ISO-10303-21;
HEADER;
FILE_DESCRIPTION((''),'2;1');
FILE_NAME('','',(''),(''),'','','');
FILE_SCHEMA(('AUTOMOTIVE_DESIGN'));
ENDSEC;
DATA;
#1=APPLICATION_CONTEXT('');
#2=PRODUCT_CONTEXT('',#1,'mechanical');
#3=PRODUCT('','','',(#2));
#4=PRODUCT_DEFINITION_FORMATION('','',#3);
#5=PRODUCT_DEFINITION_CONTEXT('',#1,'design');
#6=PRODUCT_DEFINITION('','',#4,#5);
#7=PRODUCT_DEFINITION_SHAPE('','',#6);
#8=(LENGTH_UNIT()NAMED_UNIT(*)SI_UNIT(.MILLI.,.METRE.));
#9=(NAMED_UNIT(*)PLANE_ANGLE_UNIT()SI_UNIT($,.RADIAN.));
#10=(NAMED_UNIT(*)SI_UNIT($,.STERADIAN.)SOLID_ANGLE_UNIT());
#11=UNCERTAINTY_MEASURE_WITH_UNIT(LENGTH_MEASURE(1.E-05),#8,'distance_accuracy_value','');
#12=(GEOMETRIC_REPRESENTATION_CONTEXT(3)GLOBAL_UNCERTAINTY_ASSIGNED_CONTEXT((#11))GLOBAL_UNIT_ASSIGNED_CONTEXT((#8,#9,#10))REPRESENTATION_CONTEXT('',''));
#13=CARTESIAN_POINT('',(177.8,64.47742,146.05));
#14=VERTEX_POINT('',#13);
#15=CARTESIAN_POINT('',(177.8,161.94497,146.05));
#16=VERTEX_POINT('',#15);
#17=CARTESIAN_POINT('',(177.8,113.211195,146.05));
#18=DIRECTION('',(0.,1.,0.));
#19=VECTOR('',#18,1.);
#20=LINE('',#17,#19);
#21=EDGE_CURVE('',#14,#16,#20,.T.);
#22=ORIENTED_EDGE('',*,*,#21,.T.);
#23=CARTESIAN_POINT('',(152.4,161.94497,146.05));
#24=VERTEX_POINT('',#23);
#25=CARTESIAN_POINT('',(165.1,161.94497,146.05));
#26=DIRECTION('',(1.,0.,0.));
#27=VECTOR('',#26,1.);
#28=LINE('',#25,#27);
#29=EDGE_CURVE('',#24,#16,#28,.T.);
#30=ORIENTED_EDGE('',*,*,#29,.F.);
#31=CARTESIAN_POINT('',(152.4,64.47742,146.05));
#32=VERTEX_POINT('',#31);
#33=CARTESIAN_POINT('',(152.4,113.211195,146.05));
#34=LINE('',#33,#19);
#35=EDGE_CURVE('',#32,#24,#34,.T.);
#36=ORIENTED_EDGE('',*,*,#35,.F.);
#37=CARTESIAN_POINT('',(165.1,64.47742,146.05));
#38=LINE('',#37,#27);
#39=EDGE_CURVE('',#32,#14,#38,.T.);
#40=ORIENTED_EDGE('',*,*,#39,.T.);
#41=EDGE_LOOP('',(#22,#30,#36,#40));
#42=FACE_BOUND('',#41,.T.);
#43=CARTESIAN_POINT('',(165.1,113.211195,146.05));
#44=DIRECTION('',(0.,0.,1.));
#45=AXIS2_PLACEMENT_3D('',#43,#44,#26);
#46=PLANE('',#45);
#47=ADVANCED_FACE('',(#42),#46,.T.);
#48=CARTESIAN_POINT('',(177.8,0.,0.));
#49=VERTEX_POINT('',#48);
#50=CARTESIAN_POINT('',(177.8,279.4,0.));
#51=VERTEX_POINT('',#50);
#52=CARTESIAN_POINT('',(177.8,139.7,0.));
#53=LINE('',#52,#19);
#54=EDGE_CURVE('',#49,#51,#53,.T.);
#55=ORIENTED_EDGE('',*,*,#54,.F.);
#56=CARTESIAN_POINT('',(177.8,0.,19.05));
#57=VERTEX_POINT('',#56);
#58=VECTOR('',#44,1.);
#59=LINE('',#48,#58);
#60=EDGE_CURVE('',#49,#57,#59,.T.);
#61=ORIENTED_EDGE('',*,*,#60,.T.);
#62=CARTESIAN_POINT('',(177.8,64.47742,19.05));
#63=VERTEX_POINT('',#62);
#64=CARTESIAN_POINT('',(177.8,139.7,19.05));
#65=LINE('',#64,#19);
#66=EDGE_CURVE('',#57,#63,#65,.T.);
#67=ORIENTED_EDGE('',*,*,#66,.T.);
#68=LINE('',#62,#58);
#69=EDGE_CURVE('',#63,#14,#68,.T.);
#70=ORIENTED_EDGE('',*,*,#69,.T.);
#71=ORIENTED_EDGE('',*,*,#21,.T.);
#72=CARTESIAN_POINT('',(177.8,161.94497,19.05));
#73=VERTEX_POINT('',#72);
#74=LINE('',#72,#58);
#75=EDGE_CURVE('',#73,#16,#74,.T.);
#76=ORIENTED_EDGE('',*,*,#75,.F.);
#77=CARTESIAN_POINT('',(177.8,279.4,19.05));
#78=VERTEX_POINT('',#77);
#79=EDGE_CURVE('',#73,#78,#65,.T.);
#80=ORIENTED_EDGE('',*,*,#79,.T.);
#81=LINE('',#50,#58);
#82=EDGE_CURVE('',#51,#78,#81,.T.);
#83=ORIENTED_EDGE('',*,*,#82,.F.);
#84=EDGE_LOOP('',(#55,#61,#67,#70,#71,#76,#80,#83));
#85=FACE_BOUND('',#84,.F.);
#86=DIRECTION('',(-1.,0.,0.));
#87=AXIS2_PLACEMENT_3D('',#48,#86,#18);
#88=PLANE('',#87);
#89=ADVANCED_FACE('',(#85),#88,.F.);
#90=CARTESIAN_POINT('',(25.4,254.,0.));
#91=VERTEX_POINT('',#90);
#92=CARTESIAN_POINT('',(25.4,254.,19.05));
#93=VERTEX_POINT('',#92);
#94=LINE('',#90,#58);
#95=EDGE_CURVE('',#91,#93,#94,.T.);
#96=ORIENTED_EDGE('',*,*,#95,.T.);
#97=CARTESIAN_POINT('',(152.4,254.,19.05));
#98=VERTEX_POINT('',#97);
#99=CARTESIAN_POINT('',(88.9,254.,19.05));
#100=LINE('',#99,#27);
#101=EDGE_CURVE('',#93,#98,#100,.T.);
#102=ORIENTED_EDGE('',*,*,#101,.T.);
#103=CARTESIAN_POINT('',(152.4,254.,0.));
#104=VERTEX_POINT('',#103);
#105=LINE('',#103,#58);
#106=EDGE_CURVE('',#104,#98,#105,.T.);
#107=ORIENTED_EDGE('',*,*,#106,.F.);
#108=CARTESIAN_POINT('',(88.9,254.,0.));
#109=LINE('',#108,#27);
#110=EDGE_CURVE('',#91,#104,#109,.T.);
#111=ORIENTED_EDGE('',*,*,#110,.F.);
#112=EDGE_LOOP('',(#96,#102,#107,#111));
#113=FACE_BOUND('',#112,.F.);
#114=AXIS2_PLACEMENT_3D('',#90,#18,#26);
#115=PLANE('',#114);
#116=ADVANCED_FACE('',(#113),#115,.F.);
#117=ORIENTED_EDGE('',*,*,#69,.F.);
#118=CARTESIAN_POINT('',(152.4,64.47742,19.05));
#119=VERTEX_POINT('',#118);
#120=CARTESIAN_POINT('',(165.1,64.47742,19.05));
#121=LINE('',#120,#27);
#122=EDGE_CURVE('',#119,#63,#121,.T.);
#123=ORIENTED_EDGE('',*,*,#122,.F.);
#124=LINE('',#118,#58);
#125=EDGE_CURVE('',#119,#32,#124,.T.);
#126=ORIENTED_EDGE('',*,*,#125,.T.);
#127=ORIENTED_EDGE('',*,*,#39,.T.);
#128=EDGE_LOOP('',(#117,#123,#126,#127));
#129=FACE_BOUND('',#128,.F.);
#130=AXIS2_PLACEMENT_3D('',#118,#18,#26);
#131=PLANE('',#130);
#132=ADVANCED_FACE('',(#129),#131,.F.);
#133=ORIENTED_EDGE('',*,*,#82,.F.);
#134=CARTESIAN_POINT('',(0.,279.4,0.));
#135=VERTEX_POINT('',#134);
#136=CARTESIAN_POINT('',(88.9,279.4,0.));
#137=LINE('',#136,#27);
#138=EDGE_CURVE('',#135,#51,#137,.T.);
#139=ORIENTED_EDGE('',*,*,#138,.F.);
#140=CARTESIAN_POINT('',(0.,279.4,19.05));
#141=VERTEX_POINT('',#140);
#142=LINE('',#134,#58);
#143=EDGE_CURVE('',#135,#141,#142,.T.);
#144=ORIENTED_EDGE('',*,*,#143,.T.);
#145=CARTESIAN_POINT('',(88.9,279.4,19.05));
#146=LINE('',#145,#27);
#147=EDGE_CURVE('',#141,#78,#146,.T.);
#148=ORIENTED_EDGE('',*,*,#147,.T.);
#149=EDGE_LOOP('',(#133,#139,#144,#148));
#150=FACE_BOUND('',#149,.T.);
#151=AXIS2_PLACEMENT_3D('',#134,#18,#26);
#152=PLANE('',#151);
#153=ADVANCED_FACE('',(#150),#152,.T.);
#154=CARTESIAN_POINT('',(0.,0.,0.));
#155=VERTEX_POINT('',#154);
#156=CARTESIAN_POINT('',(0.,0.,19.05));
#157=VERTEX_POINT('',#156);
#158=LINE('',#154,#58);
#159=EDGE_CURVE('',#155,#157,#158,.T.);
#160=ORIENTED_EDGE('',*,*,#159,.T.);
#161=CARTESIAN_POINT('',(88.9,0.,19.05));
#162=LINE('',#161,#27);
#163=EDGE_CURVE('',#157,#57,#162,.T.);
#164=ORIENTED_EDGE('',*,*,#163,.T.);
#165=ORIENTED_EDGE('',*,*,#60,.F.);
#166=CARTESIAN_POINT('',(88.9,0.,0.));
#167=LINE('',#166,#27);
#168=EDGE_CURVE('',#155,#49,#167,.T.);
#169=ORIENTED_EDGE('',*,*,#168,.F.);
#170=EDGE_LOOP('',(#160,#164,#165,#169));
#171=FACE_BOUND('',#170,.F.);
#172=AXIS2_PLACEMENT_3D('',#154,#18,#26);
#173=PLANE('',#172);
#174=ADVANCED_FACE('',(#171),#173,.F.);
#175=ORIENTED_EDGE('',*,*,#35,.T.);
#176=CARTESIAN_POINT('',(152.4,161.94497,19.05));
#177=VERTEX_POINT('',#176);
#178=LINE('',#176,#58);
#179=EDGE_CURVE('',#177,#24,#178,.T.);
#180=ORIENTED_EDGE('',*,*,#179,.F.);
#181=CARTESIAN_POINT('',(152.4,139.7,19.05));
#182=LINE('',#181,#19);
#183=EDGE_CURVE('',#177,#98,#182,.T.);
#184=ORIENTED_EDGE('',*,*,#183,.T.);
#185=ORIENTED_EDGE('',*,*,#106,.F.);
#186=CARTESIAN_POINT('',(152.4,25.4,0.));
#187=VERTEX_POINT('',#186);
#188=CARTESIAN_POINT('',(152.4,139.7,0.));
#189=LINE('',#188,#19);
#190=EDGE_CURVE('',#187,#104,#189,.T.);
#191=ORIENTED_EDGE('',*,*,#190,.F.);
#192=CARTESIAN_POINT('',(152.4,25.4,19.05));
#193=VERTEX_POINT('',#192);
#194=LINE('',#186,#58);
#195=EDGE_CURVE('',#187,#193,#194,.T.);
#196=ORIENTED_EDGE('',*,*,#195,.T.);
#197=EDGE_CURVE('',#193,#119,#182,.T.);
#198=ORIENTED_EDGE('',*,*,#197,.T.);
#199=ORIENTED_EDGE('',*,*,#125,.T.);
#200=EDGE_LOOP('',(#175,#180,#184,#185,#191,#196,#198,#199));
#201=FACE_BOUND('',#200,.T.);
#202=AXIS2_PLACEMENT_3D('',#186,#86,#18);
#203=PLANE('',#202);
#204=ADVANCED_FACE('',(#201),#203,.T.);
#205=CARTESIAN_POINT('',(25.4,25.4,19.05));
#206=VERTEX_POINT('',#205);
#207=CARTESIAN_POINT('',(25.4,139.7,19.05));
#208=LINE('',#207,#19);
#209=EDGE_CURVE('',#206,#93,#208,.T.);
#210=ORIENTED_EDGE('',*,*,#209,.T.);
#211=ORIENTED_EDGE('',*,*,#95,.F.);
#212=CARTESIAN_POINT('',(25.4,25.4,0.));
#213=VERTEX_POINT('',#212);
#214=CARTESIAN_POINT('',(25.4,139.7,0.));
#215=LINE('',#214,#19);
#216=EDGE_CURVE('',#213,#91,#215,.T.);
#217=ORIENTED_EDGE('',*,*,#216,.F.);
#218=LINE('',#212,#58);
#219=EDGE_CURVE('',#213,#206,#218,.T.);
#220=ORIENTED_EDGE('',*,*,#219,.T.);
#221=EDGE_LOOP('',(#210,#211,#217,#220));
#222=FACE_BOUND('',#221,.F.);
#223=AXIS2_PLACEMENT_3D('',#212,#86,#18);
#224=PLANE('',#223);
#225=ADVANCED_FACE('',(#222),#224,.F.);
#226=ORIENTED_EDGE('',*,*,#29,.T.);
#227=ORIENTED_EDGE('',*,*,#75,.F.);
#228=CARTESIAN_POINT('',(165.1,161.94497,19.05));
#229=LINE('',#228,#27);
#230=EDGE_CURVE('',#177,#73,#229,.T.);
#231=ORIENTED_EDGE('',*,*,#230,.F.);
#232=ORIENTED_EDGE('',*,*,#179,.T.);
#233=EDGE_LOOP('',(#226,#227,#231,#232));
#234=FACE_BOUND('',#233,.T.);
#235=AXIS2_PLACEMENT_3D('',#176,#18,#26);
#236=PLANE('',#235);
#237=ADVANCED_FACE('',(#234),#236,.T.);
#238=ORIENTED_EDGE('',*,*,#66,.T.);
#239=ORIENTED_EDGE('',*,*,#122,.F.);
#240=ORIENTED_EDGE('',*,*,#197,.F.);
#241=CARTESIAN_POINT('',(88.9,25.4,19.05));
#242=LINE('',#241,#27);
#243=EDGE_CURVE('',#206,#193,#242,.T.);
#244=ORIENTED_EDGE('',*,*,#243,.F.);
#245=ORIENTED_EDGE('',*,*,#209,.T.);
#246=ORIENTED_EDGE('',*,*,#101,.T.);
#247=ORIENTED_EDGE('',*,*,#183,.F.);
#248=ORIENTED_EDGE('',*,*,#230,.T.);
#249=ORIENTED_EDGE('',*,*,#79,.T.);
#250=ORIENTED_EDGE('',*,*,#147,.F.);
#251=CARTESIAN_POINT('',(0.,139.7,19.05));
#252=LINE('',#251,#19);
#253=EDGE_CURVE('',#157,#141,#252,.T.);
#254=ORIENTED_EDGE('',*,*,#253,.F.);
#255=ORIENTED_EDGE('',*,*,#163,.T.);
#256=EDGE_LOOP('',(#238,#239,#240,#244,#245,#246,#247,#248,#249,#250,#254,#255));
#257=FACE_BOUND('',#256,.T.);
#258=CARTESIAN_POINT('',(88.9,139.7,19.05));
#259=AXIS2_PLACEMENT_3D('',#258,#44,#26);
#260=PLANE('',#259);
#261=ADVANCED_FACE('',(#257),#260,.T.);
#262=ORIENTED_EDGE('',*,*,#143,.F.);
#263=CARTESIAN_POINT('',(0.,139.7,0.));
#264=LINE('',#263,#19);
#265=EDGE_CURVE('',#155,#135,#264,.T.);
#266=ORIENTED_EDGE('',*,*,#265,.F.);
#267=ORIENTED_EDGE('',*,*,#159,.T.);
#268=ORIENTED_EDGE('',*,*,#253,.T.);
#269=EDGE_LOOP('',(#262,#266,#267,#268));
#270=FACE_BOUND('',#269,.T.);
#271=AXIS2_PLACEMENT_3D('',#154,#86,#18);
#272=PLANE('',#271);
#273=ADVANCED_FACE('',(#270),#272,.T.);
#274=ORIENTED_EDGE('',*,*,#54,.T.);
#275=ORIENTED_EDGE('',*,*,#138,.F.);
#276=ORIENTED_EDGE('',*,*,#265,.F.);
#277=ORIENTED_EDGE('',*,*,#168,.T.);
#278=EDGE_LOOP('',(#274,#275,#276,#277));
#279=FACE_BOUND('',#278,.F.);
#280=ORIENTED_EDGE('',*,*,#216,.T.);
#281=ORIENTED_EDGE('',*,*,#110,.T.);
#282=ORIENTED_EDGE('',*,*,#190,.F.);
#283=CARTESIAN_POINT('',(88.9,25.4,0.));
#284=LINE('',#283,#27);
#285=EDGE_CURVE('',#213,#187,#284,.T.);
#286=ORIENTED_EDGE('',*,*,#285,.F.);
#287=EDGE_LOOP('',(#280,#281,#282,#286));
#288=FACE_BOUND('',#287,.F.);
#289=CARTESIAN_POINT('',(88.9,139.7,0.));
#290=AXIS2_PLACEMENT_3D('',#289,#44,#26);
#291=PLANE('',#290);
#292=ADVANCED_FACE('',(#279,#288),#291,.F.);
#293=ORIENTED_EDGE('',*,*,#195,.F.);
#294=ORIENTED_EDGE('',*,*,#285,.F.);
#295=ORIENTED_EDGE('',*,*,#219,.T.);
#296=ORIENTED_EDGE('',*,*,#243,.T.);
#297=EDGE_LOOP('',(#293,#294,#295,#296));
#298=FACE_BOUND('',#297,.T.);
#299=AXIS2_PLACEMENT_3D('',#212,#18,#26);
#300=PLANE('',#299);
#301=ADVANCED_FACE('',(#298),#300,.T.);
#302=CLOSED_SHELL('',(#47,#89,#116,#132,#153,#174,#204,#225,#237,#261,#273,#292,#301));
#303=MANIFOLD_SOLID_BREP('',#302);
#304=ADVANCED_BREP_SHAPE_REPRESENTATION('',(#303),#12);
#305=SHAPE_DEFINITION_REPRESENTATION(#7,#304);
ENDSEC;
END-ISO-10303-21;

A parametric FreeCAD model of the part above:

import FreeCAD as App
import Part
import Sketcher
Q = App.Units.Quantity


def add_polygon(sketch, points):
    """Adds a closed chain of lines whose ends are joined by coincident constraints."""
    first, n = sketch.GeometryCount, len(points)
    for a, b in zip(points, points[1:] + points[:1]):
        sketch.addGeometry(Part.LineSegment(App.Vector(*a, 0), App.Vector(*b, 0)), False)
    for i in range(n):
        sketch.addConstraint(Sketcher.Constraint("Coincident", first + i, 2, first + (i + 1) % n, 1))

doc = App.newDocument("Part")
params = doc.addObject("Spreadsheet::Sheet", "Params")
for row, (alias, value) in enumerate([
    ("sketch1_width", "7 in"),
    ("sketch1_width2", "5 in"),
    ("sketch1_height", "11 in"),
    ("sketch1_height2", "9 in"),
    ("pad1_length", "0.75 in"),
    ("sketch2_width", "1 in"),
    ("pad2_length", "5 in"),
], start=1):
    params.set(f"A{row}", alias)
    params.set(f"B{row}", "=" + value)
    params.setAlias(f"B{row}", alias)

body = doc.addObject("PartDesign::Body", "Body")

# Sketch on XY plane
sketch1 = body.newObject("Sketcher::SketchObject", "Sketch")
sketch1.AttachmentSupport = (doc.getObject("XY_Plane"), [""])
sketch1.MapMode = "FlatFace"
add_polygon(sketch1, [(0, 279.4), (0, 0), (177.8, 0), (177.8, 279.4)])  # lines 0-3
add_polygon(sketch1, [(152.4, 25.4), (25.4, 25.4), (25.4, 254), (152.4, 254)])  # lines 4-7
sketch1.addConstraint([
    Sketcher.Constraint("Vertical", 0),
    Sketcher.Constraint("Horizontal", 1),
    Sketcher.Constraint("Vertical", 2),
    Sketcher.Constraint("Horizontal", 3),
    Sketcher.Constraint("Horizontal", 4),
    Sketcher.Constraint("Vertical", 5),
    Sketcher.Constraint("Horizontal", 6),
    Sketcher.Constraint("Vertical", 7),
    Sketcher.Constraint("Coincident", 0, 2, -1, 1),
    Sketcher.Constraint("DistanceX", 1, 1, 1, 2, Q("7 in")),
    Sketcher.Constraint("DistanceX", 4, 2, 4, 1, Q("5 in")),
    Sketcher.Constraint("DistanceY", 0, 2, 0, 1, Q("11 in")),
    Sketcher.Constraint("DistanceY", 5, 1, 5, 2, Q("9 in")),
    Sketcher.Constraint("DistanceX", -1, 1, 4, 2, Q("1 in")),
    Sketcher.Constraint("DistanceY", -1, 1, 4, 2, Q("1 in")),
])
sketch1.setExpression("Constraints[17]", "Params.sketch1_width")
sketch1.setExpression("Constraints[18]", "Params.sketch1_width2")
sketch1.setExpression("Constraints[19]", "Params.sketch1_height")
sketch1.setExpression("Constraints[20]", "Params.sketch1_height2")
pad1 = body.newObject("PartDesign::Pad", "Pad")
pad1.Profile = sketch1
pad1.setExpression("Length", "Params.pad1_length")

# Sketch on XY plane
sketch2 = body.newObject("Sketcher::SketchObject", "Sketch001")
sketch2.AttachmentSupport = (doc.getObject("XY_Plane"), [""])
sketch2.MapMode = "FlatFace"
sketch2.AttachmentOffset = App.Placement(App.Vector(0, 0, 0.75 * 25.4), App.Rotation())
add_polygon(sketch2, [(152.4, 161.94497), (152.4, 64.47742), (177.8, 64.47742), (177.8, 161.94497)])  # lines 0-3
sketch2.addConstraint([
    Sketcher.Constraint("Vertical", 0),
    Sketcher.Constraint("Horizontal", 1),
    Sketcher.Constraint("Vertical", 2),
    Sketcher.Constraint("Horizontal", 3),
    Sketcher.Constraint("DistanceX", 1, 1, 1, 2, Q("1 in")),
    Sketcher.Constraint("DistanceX", -1, 1, 0, 2, Q("6 in")),
    Sketcher.Constraint("DistanceY", 0, 2, 0, 1, 97.467549),
    Sketcher.Constraint("DistanceY", -1, 1, 0, 2, 64.47742),
])
sketch2.setExpression("Constraints[8]", "Params.sketch2_width")
pad2 = body.newObject("PartDesign::Pad", "Pad001")
pad2.Profile = sketch2
pad2.setExpression("Length", "Params.pad2_length")

doc.recompute()
